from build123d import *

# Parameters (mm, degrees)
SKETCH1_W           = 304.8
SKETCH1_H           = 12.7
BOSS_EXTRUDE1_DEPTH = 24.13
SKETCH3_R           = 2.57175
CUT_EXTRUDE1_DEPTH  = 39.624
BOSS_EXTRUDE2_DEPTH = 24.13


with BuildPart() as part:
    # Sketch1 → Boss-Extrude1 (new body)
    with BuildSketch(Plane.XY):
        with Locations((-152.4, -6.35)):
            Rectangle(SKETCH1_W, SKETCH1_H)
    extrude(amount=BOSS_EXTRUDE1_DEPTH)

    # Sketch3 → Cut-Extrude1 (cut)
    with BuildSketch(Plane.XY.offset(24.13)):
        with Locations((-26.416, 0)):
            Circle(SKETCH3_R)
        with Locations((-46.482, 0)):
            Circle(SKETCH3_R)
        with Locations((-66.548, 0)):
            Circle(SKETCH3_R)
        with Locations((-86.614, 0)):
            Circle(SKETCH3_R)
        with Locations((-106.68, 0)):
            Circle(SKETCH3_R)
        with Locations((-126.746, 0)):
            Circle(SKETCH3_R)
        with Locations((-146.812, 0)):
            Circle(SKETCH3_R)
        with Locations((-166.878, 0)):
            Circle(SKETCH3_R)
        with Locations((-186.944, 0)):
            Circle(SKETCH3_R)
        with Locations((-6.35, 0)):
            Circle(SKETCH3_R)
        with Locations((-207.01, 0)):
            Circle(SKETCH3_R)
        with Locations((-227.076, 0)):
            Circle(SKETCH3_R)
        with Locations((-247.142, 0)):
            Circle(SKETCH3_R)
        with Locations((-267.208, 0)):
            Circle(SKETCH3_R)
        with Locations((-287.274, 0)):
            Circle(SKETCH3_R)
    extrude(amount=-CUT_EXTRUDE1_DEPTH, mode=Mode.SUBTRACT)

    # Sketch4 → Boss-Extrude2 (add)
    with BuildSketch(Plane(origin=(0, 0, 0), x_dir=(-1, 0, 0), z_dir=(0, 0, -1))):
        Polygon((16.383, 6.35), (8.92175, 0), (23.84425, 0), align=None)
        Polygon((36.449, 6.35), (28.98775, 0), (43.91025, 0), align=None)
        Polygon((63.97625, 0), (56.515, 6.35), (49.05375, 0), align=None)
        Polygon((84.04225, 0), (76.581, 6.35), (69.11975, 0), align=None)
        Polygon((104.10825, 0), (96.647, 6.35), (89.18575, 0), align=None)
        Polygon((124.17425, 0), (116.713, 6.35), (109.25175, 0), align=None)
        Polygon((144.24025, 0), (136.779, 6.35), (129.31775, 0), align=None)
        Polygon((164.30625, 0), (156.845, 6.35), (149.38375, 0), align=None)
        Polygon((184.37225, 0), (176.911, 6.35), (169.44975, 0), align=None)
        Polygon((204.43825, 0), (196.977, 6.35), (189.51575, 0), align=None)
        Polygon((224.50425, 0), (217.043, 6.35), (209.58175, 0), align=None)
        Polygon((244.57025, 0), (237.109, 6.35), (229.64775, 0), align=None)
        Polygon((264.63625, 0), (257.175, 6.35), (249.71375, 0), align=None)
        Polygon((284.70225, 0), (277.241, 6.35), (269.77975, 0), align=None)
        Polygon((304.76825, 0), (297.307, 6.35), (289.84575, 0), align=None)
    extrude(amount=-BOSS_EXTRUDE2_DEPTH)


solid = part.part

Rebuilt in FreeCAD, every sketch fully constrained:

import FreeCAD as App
import Part
import Sketcher
Q = App.Units.Quantity


def add_polygon(sketch, points):
    """Adds a closed chain of lines whose ends are joined by coincident constraints."""
    first, n = sketch.GeometryCount, len(points)
    for a, b in zip(points, points[1:] + points[:1]):
        sketch.addGeometry(Part.LineSegment(App.Vector(*a, 0), App.Vector(*b, 0)), False)
    for i in range(n):
        sketch.addConstraint(Sketcher.Constraint("Coincident", first + i, 2, first + (i + 1) % n, 1))

doc = App.newDocument("Part")
body = doc.addObject("PartDesign::Body", "Body")

# Sketch on XY plane
sketch1 = body.newObject("Sketcher::SketchObject", "Sketch")
sketch1.AttachmentSupport = (doc.getObject("XY_Plane"), [""])
sketch1.MapMode = "FlatFace"
add_polygon(sketch1, [(-305, 0), (-305, -13), (0, -13), (0, 0)])  # lines 0-3
sketch1.addConstraint([
    Sketcher.Constraint("Vertical", 0),
    Sketcher.Constraint("Horizontal", 1),
    Sketcher.Constraint("Vertical", 2),
    Sketcher.Constraint("Horizontal", 3),
    Sketcher.Constraint("Coincident", 2, 2, -1, 1),
    Sketcher.Constraint("DistanceX", 1, 1, 1, 2, Q("12 in")),
    Sketcher.Constraint("DistanceY", 0, 2, 0, 1, Q("0.5 in")),
])
pad1 = body.newObject("PartDesign::Pad", "Pad")
pad1.Profile = sketch1
pad1.Length = Q("0.95 in")

# Sketch on XY plane
sketch2 = body.newObject("Sketcher::SketchObject", "Sketch001")
sketch2.AttachmentSupport = (doc.getObject("XY_Plane"), [""])
sketch2.MapMode = "FlatFace"
sketch2.AttachmentOffset = App.Placement(App.Vector(0, 0, 0.95 * 25.4), App.Rotation())
sketch2.addGeometry([
    Part.Circle(App.Vector(-26.4, 0, 0), App.Vector(0, 0, 1), 2.6),  # 0
    Part.Circle(App.Vector(-46.5, 0, 0), App.Vector(0, 0, 1), 2.6),  # 1
    Part.Circle(App.Vector(-66.5, 0, 0), App.Vector(0, 0, 1), 2.6),  # 2
    Part.Circle(App.Vector(-86.6, 0, 0), App.Vector(0, 0, 1), 2.6),  # 3
    Part.Circle(App.Vector(-106.7, 0, 0), App.Vector(0, 0, 1), 2.6),  # 4
    Part.Circle(App.Vector(-126.7, 0, 0), App.Vector(0, 0, 1), 2.6),  # 5
    Part.Circle(App.Vector(-146.8, 0, 0), App.Vector(0, 0, 1), 2.6),  # 6
    Part.Circle(App.Vector(-166.9, 0, 0), App.Vector(0, 0, 1), 2.6),  # 7
    Part.Circle(App.Vector(-186.9, 0, 0), App.Vector(0, 0, 1), 2.6),  # 8
    Part.Circle(App.Vector(-6.3, 0, 0), App.Vector(0, 0, 1), 2.6),  # 9
    Part.Circle(App.Vector(-207, 0, 0), App.Vector(0, 0, 1), 2.6),  # 10
    Part.Circle(App.Vector(-227.1, 0, 0), App.Vector(0, 0, 1), 2.6),  # 11
    Part.Circle(App.Vector(-247.1, 0, 0), App.Vector(0, 0, 1), 2.6),  # 12
    Part.Circle(App.Vector(-267.2, 0, 0), App.Vector(0, 0, 1), 2.6),  # 13
    Part.Circle(App.Vector(-287.3, 0, 0), App.Vector(0, 0, 1), 2.6),  # 14
], False)
sketch2.addConstraint([
    Sketcher.Constraint("Equal", 0, 1),
    Sketcher.Constraint("Equal", 1, 2),
    Sketcher.Constraint("Equal", 2, 3),
    Sketcher.Constraint("Equal", 3, 4),
    Sketcher.Constraint("Equal", 4, 5),
    Sketcher.Constraint("Equal", 5, 6),
    Sketcher.Constraint("Equal", 6, 7),
    Sketcher.Constraint("Equal", 7, 8),
    Sketcher.Constraint("Equal", 8, 9),
    Sketcher.Constraint("Equal", 9, 10),
    Sketcher.Constraint("Equal", 10, 11),
    Sketcher.Constraint("Equal", 11, 12),
    Sketcher.Constraint("Equal", 12, 13),
    Sketcher.Constraint("Equal", 13, 14),
    Sketcher.Constraint("PointOnObject", 0, 3, -1),
    Sketcher.Constraint("PointOnObject", 1, 3, -1),
    Sketcher.Constraint("PointOnObject", 2, 3, -1),
    Sketcher.Constraint("PointOnObject", 3, 3, -1),
    Sketcher.Constraint("PointOnObject", 4, 3, -1),
    Sketcher.Constraint("PointOnObject", 5, 3, -1),
    Sketcher.Constraint("PointOnObject", 6, 3, -1),
    Sketcher.Constraint("PointOnObject", 7, 3, -1),
    Sketcher.Constraint("PointOnObject", 8, 3, -1),
    Sketcher.Constraint("PointOnObject", 9, 3, -1),
    Sketcher.Constraint("PointOnObject", 10, 3, -1),
    Sketcher.Constraint("PointOnObject", 11, 3, -1),
    Sketcher.Constraint("PointOnObject", 12, 3, -1),
    Sketcher.Constraint("PointOnObject", 13, 3, -1),
    Sketcher.Constraint("PointOnObject", 14, 3, -1),
    Sketcher.Constraint("Diameter", 0, Q("0.2025 in")),
    Sketcher.Constraint("DistanceX", 4, 3, -1, 1, Q("4.2 in")),
    Sketcher.Constraint("DistanceX", 0, 3, -1, 1, Q("1.04 in")),
    Sketcher.Constraint("DistanceX", 1, 3, -1, 1, Q("1.83 in")),
    Sketcher.Constraint("DistanceX", 2, 3, -1, 1, Q("2.62 in")),
    Sketcher.Constraint("DistanceX", 3, 3, -1, 1, Q("3.41 in")),
    Sketcher.Constraint("DistanceX", 5, 3, -1, 1, Q("4.99 in")),
    Sketcher.Constraint("DistanceX", 6, 3, -1, 1, Q("5.78 in")),
    Sketcher.Constraint("DistanceX", 7, 3, -1, 1, Q("6.57 in")),
    Sketcher.Constraint("DistanceX", 8, 3, -1, 1, Q("7.36 in")),
    Sketcher.Constraint("DistanceX", 9, 3, -1, 1, Q("0.25 in")),
    Sketcher.Constraint("DistanceX", 10, 3, -1, 1, Q("8.15 in")),
    Sketcher.Constraint("DistanceX", 11, 3, -1, 1, Q("8.94 in")),
    Sketcher.Constraint("DistanceX", 12, 3, -1, 1, Q("9.73 in")),
    Sketcher.Constraint("DistanceX", 13, 3, -1, 1, Q("10.52 in")),
    Sketcher.Constraint("DistanceX", 14, 3, -1, 1, Q("11.31 in")),
])
pocket1 = body.newObject("PartDesign::Pocket", "Pocket")
pocket1.Profile = sketch2
pocket1.Length = Q("1.56 in")

# Sketch on XY plane
sketch3 = body.newObject("Sketcher::SketchObject", "Sketch002")
sketch3.AttachmentSupport = (doc.getObject("XY_Plane"), [""])
sketch3.MapMode = "FlatFace"
add_polygon(sketch3, [(-16, 6), (-9, 0), (-24, 0)])  # lines 0-2
add_polygon(sketch3, [(-36, 6), (-29, 0), (-44, 0)])  # lines 3-5
add_polygon(sketch3, [(-64, 0), (-57, 6), (-49, 0)])  # lines 6-8
add_polygon(sketch3, [(-84, 0), (-77, 6), (-69, 0)])  # lines 9-11
add_polygon(sketch3, [(-104, 0), (-97, 6), (-89, 0)])  # lines 12-14
add_polygon(sketch3, [(-124, 0), (-117, 6), (-109, 0)])  # lines 15-17
add_polygon(sketch3, [(-144, 0), (-137, 6), (-129, 0)])  # lines 18-20
add_polygon(sketch3, [(-164, 0), (-157, 6), (-149, 0)])  # lines 21-23
add_polygon(sketch3, [(-184, 0), (-177, 6), (-169, 0)])  # lines 24-26
add_polygon(sketch3, [(-204, 0), (-197, 6), (-190, 0)])  # lines 27-29
add_polygon(sketch3, [(-225, 0), (-217, 6), (-210, 0)])  # lines 30-32
add_polygon(sketch3, [(-245, 0), (-237, 6), (-230, 0)])  # lines 33-35
add_polygon(sketch3, [(-265, 0), (-257, 6), (-250, 0)])  # lines 36-38
add_polygon(sketch3, [(-285, 0), (-277, 6), (-270, 0)])  # lines 39-41
add_polygon(sketch3, [(-305, 0), (-297, 6), (-290, 0)])  # lines 42-44
sketch3.addConstraint([
    Sketcher.Constraint("Horizontal", 1),
    Sketcher.Constraint("Horizontal", 4),
    Sketcher.Constraint("Horizontal", 8),
    Sketcher.Constraint("Horizontal", 11),
    Sketcher.Constraint("Horizontal", 14),
    Sketcher.Constraint("Horizontal", 17),
    Sketcher.Constraint("Horizontal", 20),
    Sketcher.Constraint("Horizontal", 23),
    Sketcher.Constraint("Horizontal", 26),
    Sketcher.Constraint("Horizontal", 29),
    Sketcher.Constraint("Horizontal", 32),
    Sketcher.Constraint("Horizontal", 35),
    Sketcher.Constraint("Horizontal", 38),
    Sketcher.Constraint("Horizontal", 41),
    Sketcher.Constraint("Horizontal", 44),
    Sketcher.Constraint("PointOnObject", 0, 2, -1),
    Sketcher.Constraint("PointOnObject", 3, 2, -1),
    Sketcher.Constraint("PointOnObject", 7, 2, -1),
    Sketcher.Constraint("PointOnObject", 10, 2, -1),
    Sketcher.Constraint("PointOnObject", 13, 2, -1),
    Sketcher.Constraint("PointOnObject", 16, 2, -1),
    Sketcher.Constraint("PointOnObject", 19, 2, -1),
    Sketcher.Constraint("PointOnObject", 22, 2, -1),
    Sketcher.Constraint("PointOnObject", 25, 2, -1),
    Sketcher.Constraint("PointOnObject", 28, 2, -1),
    Sketcher.Constraint("PointOnObject", 31, 2, -1),
    Sketcher.Constraint("PointOnObject", 34, 2, -1),
    Sketcher.Constraint("PointOnObject", 37, 2, -1),
    Sketcher.Constraint("PointOnObject", 40, 2, -1),
    Sketcher.Constraint("PointOnObject", 43, 2, -1),
    Sketcher.Constraint("Parallel", 0, 3),
    Sketcher.Constraint("Parallel", 2, 5),
    Sketcher.Constraint("Parallel", 5, 6),
    Sketcher.Constraint("Parallel", 3, 7),
    Sketcher.Constraint("Parallel", 6, 9),
    Sketcher.Constraint("Parallel", 7, 10),
    Sketcher.Constraint("Parallel", 9, 12),
    Sketcher.Constraint("Parallel", 10, 13),
    Sketcher.Constraint("Parallel", 12, 15),
    Sketcher.Constraint("Parallel", 13, 16),
    Sketcher.Constraint("Parallel", 15, 18),
    Sketcher.Constraint("Parallel", 16, 19),
    Sketcher.Constraint("Parallel", 18, 21),
    Sketcher.Constraint("Parallel", 19, 22),
    Sketcher.Constraint("Parallel", 21, 24),
    Sketcher.Constraint("Parallel", 22, 25),
    Sketcher.Constraint("Parallel", 24, 27),
    Sketcher.Constraint("Parallel", 25, 28),
    Sketcher.Constraint("Parallel", 27, 30),
    Sketcher.Constraint("Parallel", 28, 31),
    Sketcher.Constraint("Parallel", 30, 33),
    Sketcher.Constraint("Parallel", 31, 34),
    Sketcher.Constraint("Parallel", 33, 36),
    Sketcher.Constraint("Parallel", 34, 37),
    Sketcher.Constraint("Parallel", 36, 39),
    Sketcher.Constraint("Parallel", 37, 40),
    Sketcher.Constraint("Parallel", 39, 42),
    Sketcher.Constraint("Parallel", 40, 43),
    Sketcher.Constraint("Horizontal", 2, 2, 5, 2),
    Sketcher.Constraint("Horizontal", 5, 2, 6, 2),
    Sketcher.Constraint("Horizontal", 6, 2, 9, 2),
    Sketcher.Constraint("Horizontal", 9, 2, 12, 2),
    Sketcher.Constraint("Horizontal", 12, 2, 15, 2),
    Sketcher.Constraint("Horizontal", 15, 2, 18, 2),
    Sketcher.Constraint("Horizontal", 18, 2, 21, 2),
    Sketcher.Constraint("Horizontal", 21, 2, 24, 2),
    Sketcher.Constraint("Horizontal", 24, 2, 27, 2),
    Sketcher.Constraint("Horizontal", 27, 2, 30, 2),
    Sketcher.Constraint("Horizontal", 30, 2, 33, 2),
    Sketcher.Constraint("Horizontal", 33, 2, 36, 2),
    Sketcher.Constraint("Horizontal", 36, 2, 39, 2),
    Sketcher.Constraint("Horizontal", 39, 2, 42, 2),
    Sketcher.Constraint("Equal", 0, 2),
    Sketcher.Constraint("DistanceY", -1, 1, 2, 2, Q("0.25 in")),
    Sketcher.Constraint("DistanceX", 3, 2, 0, 2, Q("0.79 in")),
    Sketcher.Constraint("DistanceX", 6, 2, 5, 2, Q("0.79 in")),
    Sketcher.Constraint("DistanceX", 9, 2, 6, 2, Q("0.79 in")),
    Sketcher.Constraint("DistanceX", 12, 2, 9, 2, Q("0.79 in")),
    Sketcher.Constraint("DistanceX", 15, 2, 12, 2, Q("0.79 in")),
    Sketcher.Constraint("DistanceX", 18, 2, 15, 2, Q("0.79 in")),
    Sketcher.Constraint("DistanceX", 21, 2, 18, 2, Q("0.79 in")),
    Sketcher.Constraint("DistanceX", 24, 2, 21, 2, Q("0.79 in")),
    Sketcher.Constraint("DistanceX", 27, 2, 24, 2, Q("0.79 in")),
    Sketcher.Constraint("DistanceX", 30, 2, 27, 2, Q("0.79 in")),
    Sketcher.Constraint("DistanceX", 33, 2, 30, 2, Q("0.79 in")),
    Sketcher.Constraint("DistanceX", 36, 2, 33, 2, Q("0.79 in")),
    Sketcher.Constraint("DistanceX", 39, 2, 36, 2, Q("0.79 in")),
    Sketcher.Constraint("DistanceX", 42, 2, 39, 2, Q("0.79 in")),
    Sketcher.Constraint("DistanceX", 1, 2, 1, 1, Q("0.5875 in")),
    Sketcher.Constraint("DistanceX", 2, 2, -1, 1, Q("0.645 in")),
])
pad2 = body.newObject("PartDesign::Pad", "Pad001")
pad2.Profile = sketch3
pad2.Length = Q("0.95 in")

doc.recompute()
